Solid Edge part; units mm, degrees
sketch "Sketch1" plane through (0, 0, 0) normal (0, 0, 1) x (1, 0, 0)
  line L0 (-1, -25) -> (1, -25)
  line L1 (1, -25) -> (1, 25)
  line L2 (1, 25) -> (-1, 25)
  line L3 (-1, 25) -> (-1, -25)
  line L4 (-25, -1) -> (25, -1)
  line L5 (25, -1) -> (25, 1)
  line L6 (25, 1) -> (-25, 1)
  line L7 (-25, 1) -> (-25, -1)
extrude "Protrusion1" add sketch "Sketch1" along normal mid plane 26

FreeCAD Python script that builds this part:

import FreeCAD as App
import Part
import Sketcher
from FreeCAD import Vector
Q = App.Units.Quantity

doc = App.newDocument("Part")
body = doc.addObject("PartDesign::Body", "Body")

# Sketch on XY plane
sketch1 = doc.addObject("Sketcher::SketchObject", "Sketch")
body.addObject(sketch1)
sketch1.AttachmentSupport = (doc.XY_Plane, [""])
sketch1.MapMode = "FlatFace"
sketch1.addGeometry([
    Part.LineSegment(Vector(-1, -1, 0), Vector(-1, -25, 0)),  # 0
    Part.LineSegment(Vector(-1, -25, 0), Vector(1, -25, 0)),  # 1
    Part.LineSegment(Vector(1, -25, 0), Vector(1, -1, 0)),  # 2
    Part.LineSegment(Vector(1, -1, 0), Vector(25, -1, 0)),  # 3
    Part.LineSegment(Vector(25, -1, 0), Vector(25, 1, 0)),  # 4
    Part.LineSegment(Vector(25, 1, 0), Vector(1, 1, 0)),  # 5
    Part.LineSegment(Vector(1, 1, 0), Vector(1, 25, 0)),  # 6
    Part.LineSegment(Vector(1, 25, 0), Vector(-1, 25, 0)),  # 7
    Part.LineSegment(Vector(-1, 25, 0), Vector(-1, 1, 0)),  # 8
    Part.LineSegment(Vector(-1, 1, 0), Vector(-25, 1, 0)),  # 9
    Part.LineSegment(Vector(-25, 1, 0), Vector(-25, -1, 0)),  # 10
    Part.LineSegment(Vector(-25, -1, 0), Vector(-1, -1, 0)),  # 11
], False)
sketch1.addConstraint([
    Sketcher.Constraint("Coincident", 0, 2, 1, 1),
    Sketcher.Constraint("Coincident", 1, 2, 2, 1),
    Sketcher.Constraint("Coincident", 2, 2, 3, 1),
    Sketcher.Constraint("Coincident", 3, 2, 4, 1),
    Sketcher.Constraint("Coincident", 4, 2, 5, 1),
    Sketcher.Constraint("Coincident", 5, 2, 6, 1),
    Sketcher.Constraint("Coincident", 6, 2, 7, 1),
    Sketcher.Constraint("Coincident", 7, 2, 8, 1),
    Sketcher.Constraint("Coincident", 8, 2, 9, 1),
    Sketcher.Constraint("Coincident", 9, 2, 10, 1),
    Sketcher.Constraint("Coincident", 10, 2, 11, 1),
    Sketcher.Constraint("Coincident", 11, 2, 0, 1),
    Sketcher.Constraint("Vertical", 0),
    Sketcher.Constraint("Horizontal", 1),
    Sketcher.Constraint("Vertical", 2),
    Sketcher.Constraint("Horizontal", 3),
    Sketcher.Constraint("Vertical", 4),
    Sketcher.Constraint("Horizontal", 5),
    Sketcher.Constraint("Vertical", 6),
    Sketcher.Constraint("Horizontal", 7),
    Sketcher.Constraint("Vertical", 8),
    Sketcher.Constraint("Horizontal", 9),
    Sketcher.Constraint("Vertical", 10),
    Sketcher.Constraint("Horizontal", 11),
    Sketcher.Constraint("Symmetric", 0, 2, 6, 2, -1, 1),
    Sketcher.Constraint("Symmetric", 2, 2, 8, 2, -1, 1),
    Sketcher.Constraint("Symmetric", 4, 2, 10, 2, -1, 1),
    Sketcher.Constraint("Symmetric", 5, 2, 8, 2, -2),
    Sketcher.Constraint("Equal", 11, 0),
    Sketcher.Constraint("Equal", 7, 4),
    Sketcher.Constraint("DistanceX", 1, 1, 1, 2, Q("2 mm")),
    Sketcher.Constraint("DistanceX", 3, 1, 3, 2, Q("24 mm")),
])
pad1 = doc.addObject("PartDesign::Pad", "Pad")
body.addObject(pad1)
pad1.Profile = sketch1
pad1.Length = 26
pad1.Midplane = True

doc.recompute()
